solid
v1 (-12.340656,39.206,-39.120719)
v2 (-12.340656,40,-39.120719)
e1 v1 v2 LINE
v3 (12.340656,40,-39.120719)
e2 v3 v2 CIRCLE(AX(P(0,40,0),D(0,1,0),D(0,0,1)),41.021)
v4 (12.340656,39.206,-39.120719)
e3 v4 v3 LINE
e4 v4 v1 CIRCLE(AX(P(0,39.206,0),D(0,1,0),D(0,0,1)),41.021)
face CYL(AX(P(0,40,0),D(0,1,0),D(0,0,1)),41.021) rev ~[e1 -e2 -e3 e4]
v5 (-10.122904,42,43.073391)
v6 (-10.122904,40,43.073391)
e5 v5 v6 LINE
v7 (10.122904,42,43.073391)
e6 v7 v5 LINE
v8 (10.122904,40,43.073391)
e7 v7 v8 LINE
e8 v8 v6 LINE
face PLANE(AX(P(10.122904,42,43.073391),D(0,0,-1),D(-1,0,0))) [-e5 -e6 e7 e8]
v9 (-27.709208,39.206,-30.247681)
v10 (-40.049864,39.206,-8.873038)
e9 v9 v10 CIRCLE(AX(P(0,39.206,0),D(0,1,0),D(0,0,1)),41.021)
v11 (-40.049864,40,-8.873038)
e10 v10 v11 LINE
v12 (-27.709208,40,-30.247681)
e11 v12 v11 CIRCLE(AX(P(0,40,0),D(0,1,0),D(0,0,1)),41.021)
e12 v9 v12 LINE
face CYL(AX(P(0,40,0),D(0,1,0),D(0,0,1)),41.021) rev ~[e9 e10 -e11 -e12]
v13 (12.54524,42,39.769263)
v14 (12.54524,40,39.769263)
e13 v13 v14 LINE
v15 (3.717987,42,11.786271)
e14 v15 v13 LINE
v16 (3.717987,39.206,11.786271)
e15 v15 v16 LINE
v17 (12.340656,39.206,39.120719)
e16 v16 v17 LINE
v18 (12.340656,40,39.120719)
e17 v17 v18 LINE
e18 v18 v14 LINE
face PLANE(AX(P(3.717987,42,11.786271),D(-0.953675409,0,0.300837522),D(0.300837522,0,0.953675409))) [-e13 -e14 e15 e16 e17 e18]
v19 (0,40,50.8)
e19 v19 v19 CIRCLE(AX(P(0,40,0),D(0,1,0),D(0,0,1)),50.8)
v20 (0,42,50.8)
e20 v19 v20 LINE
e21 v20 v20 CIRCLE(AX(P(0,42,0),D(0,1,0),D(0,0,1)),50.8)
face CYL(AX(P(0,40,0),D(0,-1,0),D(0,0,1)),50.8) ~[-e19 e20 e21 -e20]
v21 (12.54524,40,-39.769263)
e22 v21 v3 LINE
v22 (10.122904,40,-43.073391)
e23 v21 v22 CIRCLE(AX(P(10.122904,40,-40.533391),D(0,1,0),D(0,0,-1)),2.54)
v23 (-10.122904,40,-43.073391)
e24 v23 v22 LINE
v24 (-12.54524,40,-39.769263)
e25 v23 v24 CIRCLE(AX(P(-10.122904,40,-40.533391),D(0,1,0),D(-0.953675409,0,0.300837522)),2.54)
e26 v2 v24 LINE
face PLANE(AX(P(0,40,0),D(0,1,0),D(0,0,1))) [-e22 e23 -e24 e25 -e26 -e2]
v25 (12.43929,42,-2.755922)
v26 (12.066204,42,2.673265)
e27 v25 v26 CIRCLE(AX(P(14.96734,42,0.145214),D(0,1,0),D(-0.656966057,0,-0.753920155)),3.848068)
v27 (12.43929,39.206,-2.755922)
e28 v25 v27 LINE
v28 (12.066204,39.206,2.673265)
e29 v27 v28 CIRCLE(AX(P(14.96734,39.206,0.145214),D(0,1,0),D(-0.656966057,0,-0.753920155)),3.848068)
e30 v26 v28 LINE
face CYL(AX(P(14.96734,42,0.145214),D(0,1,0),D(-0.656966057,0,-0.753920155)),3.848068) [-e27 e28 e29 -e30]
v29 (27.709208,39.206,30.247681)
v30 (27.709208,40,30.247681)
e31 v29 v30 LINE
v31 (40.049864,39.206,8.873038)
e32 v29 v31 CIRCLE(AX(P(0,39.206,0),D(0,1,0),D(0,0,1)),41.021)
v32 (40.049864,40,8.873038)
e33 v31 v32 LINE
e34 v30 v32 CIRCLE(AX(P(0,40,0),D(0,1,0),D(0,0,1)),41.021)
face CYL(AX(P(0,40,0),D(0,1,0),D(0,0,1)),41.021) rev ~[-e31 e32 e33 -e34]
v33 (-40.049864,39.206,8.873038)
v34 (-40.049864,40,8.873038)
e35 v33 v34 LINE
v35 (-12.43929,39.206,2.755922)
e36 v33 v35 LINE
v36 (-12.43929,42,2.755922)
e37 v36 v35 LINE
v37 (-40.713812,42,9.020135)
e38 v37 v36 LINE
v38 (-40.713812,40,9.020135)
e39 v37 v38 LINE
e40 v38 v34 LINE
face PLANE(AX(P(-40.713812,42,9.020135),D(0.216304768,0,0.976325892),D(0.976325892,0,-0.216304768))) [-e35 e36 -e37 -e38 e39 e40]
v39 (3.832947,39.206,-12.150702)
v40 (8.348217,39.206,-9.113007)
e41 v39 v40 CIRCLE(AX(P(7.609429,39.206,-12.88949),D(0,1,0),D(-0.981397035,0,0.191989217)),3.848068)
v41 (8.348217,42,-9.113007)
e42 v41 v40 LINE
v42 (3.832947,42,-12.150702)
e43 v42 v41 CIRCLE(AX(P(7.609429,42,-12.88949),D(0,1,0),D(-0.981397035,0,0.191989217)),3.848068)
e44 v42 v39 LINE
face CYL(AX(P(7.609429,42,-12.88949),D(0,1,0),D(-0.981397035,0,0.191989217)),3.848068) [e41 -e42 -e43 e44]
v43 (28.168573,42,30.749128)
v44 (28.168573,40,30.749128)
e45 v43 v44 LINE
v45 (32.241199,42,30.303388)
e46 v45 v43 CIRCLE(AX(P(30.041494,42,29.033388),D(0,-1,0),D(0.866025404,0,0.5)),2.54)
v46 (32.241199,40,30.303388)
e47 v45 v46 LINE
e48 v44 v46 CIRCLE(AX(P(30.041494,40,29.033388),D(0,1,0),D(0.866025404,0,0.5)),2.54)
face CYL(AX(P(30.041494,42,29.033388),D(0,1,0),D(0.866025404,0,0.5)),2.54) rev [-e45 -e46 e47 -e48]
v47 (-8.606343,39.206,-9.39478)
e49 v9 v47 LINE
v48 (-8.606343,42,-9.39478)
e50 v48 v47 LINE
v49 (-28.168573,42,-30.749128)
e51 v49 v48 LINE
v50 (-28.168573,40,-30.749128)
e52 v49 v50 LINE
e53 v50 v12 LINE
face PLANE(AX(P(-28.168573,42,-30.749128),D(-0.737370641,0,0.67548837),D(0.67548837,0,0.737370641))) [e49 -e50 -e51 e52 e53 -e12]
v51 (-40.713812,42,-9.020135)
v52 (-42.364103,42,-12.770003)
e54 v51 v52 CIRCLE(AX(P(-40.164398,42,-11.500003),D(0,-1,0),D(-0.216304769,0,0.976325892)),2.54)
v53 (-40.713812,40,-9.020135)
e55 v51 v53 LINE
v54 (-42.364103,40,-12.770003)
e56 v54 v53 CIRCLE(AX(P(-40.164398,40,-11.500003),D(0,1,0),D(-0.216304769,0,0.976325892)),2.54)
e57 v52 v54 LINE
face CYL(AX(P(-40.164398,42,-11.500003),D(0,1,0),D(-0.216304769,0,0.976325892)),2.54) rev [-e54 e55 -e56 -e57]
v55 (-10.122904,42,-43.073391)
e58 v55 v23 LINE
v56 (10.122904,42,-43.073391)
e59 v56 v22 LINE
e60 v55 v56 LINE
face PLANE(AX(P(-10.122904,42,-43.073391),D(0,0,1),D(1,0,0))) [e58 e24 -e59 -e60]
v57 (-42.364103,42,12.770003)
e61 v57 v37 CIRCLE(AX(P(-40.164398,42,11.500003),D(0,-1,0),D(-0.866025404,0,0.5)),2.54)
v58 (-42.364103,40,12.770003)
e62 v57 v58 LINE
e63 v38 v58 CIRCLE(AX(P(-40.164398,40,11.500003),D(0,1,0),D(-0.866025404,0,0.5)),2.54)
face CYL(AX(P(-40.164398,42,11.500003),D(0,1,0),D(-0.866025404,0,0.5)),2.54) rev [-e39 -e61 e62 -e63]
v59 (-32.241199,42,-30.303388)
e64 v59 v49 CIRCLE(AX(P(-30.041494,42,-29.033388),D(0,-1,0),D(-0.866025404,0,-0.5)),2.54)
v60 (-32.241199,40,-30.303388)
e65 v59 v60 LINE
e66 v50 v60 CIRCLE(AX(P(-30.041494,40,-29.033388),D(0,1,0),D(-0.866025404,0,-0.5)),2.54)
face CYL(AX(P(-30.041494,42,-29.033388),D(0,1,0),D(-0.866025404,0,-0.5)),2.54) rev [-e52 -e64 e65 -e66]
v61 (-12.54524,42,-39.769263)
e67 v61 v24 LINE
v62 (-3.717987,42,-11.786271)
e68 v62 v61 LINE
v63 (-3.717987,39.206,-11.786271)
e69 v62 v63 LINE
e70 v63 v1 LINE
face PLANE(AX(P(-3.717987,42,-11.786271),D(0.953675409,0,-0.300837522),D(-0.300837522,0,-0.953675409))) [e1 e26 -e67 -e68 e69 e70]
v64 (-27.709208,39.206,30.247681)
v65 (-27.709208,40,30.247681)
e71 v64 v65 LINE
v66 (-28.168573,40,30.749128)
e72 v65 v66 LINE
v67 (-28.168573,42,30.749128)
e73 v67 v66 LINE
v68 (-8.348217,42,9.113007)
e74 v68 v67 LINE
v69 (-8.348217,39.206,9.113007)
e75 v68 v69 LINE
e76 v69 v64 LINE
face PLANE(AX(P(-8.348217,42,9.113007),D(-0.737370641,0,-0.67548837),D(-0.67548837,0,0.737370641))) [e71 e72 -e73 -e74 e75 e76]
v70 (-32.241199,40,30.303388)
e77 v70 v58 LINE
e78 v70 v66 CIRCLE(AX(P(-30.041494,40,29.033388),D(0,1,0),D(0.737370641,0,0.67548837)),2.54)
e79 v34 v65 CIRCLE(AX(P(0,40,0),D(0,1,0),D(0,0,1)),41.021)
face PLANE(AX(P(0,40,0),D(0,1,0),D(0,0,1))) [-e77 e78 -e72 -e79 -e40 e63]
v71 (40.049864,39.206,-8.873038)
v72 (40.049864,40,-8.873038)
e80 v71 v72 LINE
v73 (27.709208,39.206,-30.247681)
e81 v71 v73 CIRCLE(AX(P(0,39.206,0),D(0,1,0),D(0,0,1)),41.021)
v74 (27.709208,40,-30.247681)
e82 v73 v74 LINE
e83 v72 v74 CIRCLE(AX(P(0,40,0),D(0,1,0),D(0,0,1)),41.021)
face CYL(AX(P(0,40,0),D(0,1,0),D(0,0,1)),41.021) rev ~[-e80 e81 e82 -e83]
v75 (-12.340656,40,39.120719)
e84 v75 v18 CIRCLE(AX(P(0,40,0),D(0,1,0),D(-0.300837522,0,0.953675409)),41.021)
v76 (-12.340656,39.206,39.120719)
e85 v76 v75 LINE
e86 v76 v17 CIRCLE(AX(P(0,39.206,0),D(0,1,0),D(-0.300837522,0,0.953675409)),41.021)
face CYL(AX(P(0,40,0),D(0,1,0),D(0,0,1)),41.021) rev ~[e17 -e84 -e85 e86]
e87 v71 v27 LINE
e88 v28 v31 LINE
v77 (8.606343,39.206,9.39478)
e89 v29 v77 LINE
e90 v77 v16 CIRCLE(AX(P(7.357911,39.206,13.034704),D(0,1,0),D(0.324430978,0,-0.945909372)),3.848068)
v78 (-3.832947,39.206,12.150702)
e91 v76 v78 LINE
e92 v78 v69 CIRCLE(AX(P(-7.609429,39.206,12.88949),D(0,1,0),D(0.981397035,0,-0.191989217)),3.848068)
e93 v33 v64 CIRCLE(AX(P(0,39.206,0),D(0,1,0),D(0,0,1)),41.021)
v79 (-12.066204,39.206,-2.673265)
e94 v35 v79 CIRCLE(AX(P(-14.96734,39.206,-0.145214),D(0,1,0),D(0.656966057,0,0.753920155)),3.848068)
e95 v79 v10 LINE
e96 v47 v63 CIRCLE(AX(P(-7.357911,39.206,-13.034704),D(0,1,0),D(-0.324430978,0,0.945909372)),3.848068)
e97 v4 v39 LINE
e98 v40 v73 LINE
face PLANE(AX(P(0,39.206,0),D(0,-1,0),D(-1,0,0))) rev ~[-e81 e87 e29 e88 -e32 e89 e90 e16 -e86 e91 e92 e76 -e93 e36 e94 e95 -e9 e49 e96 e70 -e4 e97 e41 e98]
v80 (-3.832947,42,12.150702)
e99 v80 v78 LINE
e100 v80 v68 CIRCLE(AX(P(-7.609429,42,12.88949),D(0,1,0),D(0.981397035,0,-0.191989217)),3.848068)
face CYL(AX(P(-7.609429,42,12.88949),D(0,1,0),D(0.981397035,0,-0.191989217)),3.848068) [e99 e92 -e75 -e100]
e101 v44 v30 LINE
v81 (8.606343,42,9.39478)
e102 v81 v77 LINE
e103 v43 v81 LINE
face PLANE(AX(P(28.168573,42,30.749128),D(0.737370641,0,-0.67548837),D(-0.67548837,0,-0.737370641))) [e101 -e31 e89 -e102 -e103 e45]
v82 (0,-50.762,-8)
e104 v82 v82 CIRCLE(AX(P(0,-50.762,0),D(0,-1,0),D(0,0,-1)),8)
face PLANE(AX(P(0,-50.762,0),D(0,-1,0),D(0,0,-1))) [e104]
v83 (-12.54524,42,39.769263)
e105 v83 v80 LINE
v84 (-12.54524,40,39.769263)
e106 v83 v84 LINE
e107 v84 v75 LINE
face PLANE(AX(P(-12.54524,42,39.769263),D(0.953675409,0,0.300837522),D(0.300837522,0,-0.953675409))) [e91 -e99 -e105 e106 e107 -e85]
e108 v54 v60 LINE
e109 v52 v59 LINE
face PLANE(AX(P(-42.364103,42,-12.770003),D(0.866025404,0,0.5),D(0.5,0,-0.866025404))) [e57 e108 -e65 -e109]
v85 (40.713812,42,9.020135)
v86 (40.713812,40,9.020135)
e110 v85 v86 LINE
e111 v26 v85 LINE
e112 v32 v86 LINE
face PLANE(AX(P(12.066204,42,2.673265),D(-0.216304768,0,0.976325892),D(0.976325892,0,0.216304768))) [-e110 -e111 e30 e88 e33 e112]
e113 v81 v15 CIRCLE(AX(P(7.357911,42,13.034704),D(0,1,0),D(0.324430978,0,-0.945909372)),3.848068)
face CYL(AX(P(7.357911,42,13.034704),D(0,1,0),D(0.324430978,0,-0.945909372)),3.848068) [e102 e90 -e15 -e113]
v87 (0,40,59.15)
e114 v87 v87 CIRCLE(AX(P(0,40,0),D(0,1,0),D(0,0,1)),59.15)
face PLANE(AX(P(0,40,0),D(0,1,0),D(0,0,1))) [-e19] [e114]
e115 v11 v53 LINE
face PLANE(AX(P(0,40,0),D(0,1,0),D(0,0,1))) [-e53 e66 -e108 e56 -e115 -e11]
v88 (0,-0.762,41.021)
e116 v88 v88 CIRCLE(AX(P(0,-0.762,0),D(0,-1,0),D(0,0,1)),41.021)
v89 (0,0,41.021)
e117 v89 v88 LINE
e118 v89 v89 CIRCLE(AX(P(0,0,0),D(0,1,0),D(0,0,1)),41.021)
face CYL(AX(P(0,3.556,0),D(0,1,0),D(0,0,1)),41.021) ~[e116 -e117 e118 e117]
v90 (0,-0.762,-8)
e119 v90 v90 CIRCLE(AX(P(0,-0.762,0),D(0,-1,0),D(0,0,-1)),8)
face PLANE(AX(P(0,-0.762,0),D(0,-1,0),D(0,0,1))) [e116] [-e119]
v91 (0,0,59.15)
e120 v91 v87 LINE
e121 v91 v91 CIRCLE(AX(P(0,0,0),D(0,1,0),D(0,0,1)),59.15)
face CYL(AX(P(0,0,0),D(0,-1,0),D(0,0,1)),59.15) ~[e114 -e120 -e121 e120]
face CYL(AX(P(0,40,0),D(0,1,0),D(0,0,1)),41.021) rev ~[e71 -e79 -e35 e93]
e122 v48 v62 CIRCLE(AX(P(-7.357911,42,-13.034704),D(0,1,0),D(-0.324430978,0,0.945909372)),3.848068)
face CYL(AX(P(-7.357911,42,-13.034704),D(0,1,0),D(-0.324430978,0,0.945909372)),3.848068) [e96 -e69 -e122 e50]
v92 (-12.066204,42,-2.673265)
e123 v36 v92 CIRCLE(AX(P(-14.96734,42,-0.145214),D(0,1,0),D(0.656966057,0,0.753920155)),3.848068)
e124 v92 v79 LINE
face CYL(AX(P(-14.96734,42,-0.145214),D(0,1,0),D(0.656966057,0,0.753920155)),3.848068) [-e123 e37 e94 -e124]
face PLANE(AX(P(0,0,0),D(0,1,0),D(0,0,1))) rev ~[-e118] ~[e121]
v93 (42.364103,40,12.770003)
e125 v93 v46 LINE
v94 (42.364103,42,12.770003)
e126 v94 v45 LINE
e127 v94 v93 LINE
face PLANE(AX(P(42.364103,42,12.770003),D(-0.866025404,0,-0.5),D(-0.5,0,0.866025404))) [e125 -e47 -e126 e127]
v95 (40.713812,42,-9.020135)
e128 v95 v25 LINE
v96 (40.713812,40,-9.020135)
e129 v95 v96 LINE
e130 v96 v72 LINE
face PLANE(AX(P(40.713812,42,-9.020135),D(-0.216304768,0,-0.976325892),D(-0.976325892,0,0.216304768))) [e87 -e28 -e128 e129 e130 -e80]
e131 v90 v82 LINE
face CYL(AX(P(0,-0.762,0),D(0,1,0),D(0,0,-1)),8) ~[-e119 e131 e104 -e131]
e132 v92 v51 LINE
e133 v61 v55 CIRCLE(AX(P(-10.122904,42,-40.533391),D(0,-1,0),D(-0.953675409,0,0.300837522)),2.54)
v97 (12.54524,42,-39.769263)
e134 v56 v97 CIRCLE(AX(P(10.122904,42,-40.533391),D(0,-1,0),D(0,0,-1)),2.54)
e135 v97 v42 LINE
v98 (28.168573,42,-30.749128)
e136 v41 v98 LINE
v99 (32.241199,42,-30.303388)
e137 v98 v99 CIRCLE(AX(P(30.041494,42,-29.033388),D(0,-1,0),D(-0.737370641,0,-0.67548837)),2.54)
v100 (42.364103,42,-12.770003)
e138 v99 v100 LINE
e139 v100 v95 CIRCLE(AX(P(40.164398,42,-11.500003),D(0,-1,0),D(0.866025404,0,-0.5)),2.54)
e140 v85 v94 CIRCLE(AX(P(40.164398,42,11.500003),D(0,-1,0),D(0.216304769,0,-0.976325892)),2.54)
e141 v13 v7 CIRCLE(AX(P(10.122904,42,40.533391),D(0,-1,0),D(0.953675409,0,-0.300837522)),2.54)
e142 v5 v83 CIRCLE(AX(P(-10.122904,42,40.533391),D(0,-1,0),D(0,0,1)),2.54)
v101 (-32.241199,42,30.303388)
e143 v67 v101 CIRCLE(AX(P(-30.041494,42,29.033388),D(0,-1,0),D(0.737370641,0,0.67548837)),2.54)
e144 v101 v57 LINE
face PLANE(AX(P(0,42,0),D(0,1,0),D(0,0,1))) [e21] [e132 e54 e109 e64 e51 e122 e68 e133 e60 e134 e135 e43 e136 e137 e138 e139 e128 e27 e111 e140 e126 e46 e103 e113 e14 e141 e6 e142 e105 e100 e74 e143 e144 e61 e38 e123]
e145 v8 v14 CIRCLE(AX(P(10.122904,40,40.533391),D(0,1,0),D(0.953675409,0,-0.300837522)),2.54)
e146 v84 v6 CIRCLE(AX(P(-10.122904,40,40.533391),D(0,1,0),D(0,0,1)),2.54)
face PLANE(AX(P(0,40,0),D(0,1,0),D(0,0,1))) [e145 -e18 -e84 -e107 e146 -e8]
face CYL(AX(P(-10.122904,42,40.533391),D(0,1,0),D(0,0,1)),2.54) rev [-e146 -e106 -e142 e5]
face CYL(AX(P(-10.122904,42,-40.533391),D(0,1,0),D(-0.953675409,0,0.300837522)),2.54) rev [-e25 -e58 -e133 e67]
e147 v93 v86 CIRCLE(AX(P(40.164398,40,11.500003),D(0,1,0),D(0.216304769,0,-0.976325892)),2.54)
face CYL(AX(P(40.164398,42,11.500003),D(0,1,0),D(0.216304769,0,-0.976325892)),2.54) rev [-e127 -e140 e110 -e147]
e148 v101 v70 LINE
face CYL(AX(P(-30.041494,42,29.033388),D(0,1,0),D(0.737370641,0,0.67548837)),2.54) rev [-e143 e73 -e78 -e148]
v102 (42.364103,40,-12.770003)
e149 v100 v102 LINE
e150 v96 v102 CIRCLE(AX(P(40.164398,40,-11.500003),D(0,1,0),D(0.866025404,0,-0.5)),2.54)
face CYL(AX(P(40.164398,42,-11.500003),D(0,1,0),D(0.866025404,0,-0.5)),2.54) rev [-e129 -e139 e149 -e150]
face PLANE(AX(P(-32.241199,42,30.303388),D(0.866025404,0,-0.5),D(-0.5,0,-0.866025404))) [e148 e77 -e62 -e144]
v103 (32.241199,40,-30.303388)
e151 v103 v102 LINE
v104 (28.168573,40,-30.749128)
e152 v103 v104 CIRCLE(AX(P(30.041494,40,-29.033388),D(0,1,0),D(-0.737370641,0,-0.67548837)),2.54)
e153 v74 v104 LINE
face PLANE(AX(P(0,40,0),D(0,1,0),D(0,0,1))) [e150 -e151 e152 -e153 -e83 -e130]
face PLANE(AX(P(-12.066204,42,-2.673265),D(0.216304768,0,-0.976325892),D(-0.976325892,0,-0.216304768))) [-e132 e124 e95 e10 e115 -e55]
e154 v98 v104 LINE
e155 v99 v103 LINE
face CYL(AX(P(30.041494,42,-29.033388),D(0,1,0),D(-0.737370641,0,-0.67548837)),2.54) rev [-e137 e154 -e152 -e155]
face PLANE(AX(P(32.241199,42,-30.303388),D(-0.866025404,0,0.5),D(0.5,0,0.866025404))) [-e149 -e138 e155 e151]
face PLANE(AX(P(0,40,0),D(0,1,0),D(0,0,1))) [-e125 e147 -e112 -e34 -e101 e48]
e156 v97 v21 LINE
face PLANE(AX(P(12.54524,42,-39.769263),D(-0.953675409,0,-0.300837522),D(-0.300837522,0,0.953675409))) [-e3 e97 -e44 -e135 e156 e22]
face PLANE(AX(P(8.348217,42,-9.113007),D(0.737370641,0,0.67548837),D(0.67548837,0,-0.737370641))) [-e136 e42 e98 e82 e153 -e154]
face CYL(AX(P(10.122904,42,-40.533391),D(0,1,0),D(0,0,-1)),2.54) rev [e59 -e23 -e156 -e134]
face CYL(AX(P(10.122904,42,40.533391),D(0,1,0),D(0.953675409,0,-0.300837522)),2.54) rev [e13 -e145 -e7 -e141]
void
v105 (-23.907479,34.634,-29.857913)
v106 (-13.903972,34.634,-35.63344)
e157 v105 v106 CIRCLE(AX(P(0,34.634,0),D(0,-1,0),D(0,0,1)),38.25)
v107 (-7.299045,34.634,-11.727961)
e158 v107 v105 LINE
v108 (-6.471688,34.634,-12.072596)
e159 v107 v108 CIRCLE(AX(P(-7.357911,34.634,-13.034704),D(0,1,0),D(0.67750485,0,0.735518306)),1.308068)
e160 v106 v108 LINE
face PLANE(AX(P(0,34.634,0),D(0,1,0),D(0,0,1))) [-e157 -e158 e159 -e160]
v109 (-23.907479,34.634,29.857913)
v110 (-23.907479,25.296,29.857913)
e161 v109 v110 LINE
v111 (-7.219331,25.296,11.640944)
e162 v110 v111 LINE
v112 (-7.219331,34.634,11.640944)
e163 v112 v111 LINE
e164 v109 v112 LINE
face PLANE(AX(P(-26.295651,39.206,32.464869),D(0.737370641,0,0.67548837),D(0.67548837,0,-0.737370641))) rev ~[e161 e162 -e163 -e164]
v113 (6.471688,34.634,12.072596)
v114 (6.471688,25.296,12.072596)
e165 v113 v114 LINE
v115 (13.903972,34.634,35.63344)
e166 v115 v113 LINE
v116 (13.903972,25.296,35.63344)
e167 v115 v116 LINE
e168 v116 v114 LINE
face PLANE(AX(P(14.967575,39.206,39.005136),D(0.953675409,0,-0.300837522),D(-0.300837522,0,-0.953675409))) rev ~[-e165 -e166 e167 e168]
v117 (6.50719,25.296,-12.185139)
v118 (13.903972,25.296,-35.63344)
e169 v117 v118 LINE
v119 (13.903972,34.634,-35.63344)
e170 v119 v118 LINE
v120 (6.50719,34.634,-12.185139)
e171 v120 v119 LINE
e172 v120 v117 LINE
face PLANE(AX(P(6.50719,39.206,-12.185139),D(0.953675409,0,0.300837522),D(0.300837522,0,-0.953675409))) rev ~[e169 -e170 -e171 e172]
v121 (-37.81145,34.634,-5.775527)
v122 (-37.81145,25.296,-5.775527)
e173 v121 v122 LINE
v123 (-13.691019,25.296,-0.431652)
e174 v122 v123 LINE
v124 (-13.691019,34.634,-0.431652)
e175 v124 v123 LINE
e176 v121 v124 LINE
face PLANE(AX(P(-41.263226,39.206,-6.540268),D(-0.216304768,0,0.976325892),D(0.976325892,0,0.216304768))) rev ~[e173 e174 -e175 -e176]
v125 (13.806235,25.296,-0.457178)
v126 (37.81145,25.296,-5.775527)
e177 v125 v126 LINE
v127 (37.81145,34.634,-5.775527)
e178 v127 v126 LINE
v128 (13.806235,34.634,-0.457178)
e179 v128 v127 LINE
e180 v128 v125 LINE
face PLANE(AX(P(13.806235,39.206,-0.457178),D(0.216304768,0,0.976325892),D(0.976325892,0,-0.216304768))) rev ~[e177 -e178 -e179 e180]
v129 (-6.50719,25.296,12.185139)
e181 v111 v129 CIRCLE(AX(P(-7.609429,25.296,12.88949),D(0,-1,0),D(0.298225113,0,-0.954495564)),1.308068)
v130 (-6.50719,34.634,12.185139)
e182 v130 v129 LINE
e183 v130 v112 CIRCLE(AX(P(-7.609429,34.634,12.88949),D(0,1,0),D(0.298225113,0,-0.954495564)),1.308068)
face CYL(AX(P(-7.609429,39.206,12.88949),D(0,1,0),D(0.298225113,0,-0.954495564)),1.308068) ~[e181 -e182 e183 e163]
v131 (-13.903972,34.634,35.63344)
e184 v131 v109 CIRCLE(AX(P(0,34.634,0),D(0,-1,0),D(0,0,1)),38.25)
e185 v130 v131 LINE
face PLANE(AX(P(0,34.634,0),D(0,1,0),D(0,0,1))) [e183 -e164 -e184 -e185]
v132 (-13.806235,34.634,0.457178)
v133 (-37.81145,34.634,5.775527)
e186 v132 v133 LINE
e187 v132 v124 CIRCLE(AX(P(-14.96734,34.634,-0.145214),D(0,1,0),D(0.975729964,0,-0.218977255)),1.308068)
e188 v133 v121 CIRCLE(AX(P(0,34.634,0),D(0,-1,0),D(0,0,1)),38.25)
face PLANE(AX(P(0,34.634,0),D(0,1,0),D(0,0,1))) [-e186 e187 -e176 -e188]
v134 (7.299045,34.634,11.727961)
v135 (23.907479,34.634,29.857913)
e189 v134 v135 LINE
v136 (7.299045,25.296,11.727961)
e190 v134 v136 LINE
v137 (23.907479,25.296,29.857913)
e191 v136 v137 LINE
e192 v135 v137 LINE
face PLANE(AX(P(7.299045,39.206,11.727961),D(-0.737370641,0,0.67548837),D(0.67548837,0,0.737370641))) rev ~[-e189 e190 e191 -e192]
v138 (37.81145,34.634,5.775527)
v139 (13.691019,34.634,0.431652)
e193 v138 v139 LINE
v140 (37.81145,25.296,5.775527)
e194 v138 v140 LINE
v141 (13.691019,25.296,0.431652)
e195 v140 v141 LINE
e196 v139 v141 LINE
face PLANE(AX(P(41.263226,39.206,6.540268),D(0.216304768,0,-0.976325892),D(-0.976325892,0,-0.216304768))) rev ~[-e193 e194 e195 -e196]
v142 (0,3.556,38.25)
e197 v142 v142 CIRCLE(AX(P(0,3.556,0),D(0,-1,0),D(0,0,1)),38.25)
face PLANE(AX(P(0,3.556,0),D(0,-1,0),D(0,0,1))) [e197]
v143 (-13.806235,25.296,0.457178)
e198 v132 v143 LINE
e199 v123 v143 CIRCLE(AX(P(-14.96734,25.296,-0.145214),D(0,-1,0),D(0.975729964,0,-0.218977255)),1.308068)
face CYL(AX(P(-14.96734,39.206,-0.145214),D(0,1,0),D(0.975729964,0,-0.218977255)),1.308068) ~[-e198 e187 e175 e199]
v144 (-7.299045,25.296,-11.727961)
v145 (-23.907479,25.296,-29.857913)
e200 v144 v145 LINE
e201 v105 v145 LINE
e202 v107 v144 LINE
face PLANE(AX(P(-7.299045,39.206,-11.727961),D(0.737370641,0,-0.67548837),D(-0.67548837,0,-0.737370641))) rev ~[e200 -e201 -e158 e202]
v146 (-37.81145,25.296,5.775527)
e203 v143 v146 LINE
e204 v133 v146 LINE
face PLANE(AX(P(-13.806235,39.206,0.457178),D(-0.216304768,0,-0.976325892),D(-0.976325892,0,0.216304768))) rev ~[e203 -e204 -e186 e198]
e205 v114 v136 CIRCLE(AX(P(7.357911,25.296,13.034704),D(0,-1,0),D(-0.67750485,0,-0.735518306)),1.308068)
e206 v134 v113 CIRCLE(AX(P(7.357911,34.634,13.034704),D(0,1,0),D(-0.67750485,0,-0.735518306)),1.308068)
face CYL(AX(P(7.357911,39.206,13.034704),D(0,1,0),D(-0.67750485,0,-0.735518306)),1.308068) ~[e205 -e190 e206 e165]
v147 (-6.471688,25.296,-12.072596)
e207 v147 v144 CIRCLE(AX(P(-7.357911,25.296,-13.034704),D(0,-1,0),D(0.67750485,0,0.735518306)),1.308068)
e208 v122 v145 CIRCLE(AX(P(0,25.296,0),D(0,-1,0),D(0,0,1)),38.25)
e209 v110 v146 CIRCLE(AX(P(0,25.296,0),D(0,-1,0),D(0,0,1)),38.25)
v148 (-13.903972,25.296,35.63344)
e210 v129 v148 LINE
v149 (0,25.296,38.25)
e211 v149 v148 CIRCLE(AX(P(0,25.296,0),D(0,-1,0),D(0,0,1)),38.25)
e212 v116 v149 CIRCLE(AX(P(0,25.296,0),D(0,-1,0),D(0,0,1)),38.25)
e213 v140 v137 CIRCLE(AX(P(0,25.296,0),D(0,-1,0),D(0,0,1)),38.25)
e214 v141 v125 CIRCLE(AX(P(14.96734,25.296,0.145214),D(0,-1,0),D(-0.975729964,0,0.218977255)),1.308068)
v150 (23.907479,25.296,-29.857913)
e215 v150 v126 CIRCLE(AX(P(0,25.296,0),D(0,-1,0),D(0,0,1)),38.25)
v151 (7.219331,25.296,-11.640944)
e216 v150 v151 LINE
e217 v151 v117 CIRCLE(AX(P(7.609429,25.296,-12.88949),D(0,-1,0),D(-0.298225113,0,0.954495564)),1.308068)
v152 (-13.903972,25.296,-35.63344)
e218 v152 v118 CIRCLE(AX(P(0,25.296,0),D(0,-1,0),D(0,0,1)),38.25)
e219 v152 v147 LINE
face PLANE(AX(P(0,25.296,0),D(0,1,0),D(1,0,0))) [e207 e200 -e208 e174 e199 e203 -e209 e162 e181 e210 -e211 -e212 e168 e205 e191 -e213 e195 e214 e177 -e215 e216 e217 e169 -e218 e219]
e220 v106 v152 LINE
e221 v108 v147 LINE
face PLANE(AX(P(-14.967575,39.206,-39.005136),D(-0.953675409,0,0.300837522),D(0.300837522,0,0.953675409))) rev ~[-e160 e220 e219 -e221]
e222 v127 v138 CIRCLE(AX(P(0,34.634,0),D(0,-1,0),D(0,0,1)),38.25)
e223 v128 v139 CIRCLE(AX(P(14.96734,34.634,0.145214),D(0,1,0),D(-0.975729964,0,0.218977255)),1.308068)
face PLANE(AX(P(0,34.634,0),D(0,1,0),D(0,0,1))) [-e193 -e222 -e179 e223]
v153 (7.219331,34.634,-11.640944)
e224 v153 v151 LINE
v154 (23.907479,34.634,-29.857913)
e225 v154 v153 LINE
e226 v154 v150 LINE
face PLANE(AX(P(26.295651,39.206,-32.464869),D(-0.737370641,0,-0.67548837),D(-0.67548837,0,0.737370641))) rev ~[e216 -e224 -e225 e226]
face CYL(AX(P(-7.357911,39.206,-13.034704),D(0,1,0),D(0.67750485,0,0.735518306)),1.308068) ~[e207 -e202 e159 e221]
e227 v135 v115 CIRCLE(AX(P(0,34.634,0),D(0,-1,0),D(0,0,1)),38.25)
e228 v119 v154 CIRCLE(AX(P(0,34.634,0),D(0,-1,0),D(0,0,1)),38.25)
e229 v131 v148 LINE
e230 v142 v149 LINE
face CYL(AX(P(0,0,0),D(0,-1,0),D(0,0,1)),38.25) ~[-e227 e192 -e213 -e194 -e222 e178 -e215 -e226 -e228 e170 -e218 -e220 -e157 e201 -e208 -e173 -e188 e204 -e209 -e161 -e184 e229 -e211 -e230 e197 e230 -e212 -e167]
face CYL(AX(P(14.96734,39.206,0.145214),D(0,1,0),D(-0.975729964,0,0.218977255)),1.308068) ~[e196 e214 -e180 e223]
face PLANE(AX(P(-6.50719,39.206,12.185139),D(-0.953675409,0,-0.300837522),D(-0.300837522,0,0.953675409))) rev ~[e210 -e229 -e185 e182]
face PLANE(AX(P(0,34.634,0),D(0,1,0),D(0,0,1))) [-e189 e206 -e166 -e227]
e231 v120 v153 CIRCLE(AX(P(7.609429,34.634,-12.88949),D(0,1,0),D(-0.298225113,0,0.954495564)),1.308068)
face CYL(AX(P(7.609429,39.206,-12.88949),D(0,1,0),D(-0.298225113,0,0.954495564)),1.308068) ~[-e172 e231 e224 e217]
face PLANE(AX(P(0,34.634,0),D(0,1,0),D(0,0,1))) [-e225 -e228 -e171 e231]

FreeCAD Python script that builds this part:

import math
import FreeCAD as App
import Part
import Sketcher

V = App.Vector
Q = App.Units.Quantity

doc = App.newDocument("Part")
body = doc.addObject("PartDesign::Body", "Body")

sketch1 = body.newObject("Sketcher::SketchObject", "Sketch")
sketch1.AttachmentSupport = (doc.getObject("XZ_Plane"), [""])
sketch1.MapMode = "FlatFace"
sketch1.addGeometry([
    Part.Circle(V(0, 0, 0), V(0, 0, 1), 59),
    Part.Circle(V(0, 0, 0), V(0, 0, 1), 38),
], False)
sketch1.addConstraint([
    Sketcher.Constraint("Coincident", 0, 3, -1, 1),
    Sketcher.Constraint("Coincident", 1, 3, -1, 1),
    Sketcher.Constraint("Diameter", 0, Q("118.3 mm")),
    Sketcher.Constraint("Diameter", 1, Q("76.5 mm")),
])
pad1 = body.newObject("PartDesign::Pad", "Pad")
pad1.Profile = sketch1
pad1.Length = 40
pad1.Reversed = True

sketch2 = body.newObject("Sketcher::SketchObject", "Sketch001")
sketch2.AttachmentSupport = (doc.getObject("XZ_Plane"), [""])
sketch2.MapMode = "FlatFace"
sketch2.AttachmentOffset = App.Placement(V(0, 0, -40), App.Rotation())
sketch2.addGeometry(Part.Circle(V(0, 0, 0), V(0, 0, 1), 41), False)
sketch2.addConstraint([
    Sketcher.Constraint("Coincident", 0, 3, -1, 1),
    Sketcher.Constraint("Diameter", 0, Q("3.23 in")),
])
pocket1 = body.newObject("PartDesign::Pocket", "Pocket")
pocket1.Profile = sketch2
pocket1.Length = Q("0.14 in")
pocket1.Reversed = True
doc.recompute()

datumplane = body.newObject("PartDesign::Plane", "DatumPlane")
datumplane.AttachmentSupport = (doc.getObject("XZ_Plane"), [""])
datumplane.MapMode = "FlatFace"
datumplane.AttachmentOffset = App.Placement(V(0, 0, -20), App.Rotation())
mirrored = body.newObject("PartDesign::Mirrored", "Mirrored")
mirrored.Originals = [pocket1]
mirrored.MirrorPlane = (datumplane, [""])
body.Tip = mirrored
body2 = doc.addObject("PartDesign::Body", "Body001")

sketch3 = body2.newObject("Sketcher::SketchObject", "Sketch002")
sketch3.AttachmentSupport = (doc.getObject("XZ_Plane001"), [""])
sketch3.MapMode = "FlatFace"
sketch3.AttachmentOffset = App.Placement(V(0, 0, -40), App.Rotation())
sketch3.addGeometry(Part.Circle(V(0, 0, 0), V(0, 0, 1), 51), False)
sketch3.addConstraint([
    Sketcher.Constraint("Coincident", 0, 3, -1, 1),
    Sketcher.Constraint("Diameter", 0, Q("4 in")),
])
pad2 = body2.newObject("PartDesign::Pad", "Pad001")
pad2.Profile = sketch3
pad2.Length = 2
pad2.Reversed = True

sketch4 = body2.newObject("Sketcher::SketchObject", "Sketch003")
sketch4.AttachmentSupport = (doc.getObject("XZ_Plane001"), [""])
sketch4.MapMode = "FlatFace"
sketch4.AttachmentOffset = App.Placement(V(0, 0, -42), App.Rotation())
sketch4.addGeometry(Part.Circle(V(0, 0, 0), V(0, 0, 1), 44), False)
sketch4.addConstraint([
    Sketcher.Constraint("Coincident", 0, 3, -1, 1),
    Sketcher.Constraint("Diameter", 0, Q("3.5 in")),
])
pad3 = body2.newObject("PartDesign::Pad", "Pad002")
pad3.Profile = sketch4
pad3.Length = Q("0.29 in")

sketch5 = body2.newObject("Sketcher::SketchObject", "Sketch004")
sketch5.AttachmentSupport = (doc.getObject("XZ_Plane001"), [""])
sketch5.MapMode = "FlatFace"
sketch5.AttachmentOffset = App.Placement(V(0, 0, -42), App.Rotation())
sketch5.addGeometry([
    Part.LineSegment(V(-12.5, -39.8, 0), V(-3.7, -11.8, 0)),
    Part.ArcOfCircle(Part.Circle(V(-7.4, -13, 0), V(0, 0, 1), 3.8), math.radians(19), math.radians(109)),
    Part.LineSegment(V(-8.6, -9.4, 0), V(-28.2, -30.7, 0)),
    Part.ArcOfCircle(Part.Circle(V(-30, -29, 0), V(0, 0, 1), 2.5), math.radians(-150), math.radians(-42)),
    Part.LineSegment(V(-32.2, -30.3, 0), V(-42.4, -12.8, 0)),
    Part.ArcOfCircle(Part.Circle(V(-40.2, -11.5, 0), V(0, 0, 1), 2.5), math.radians(102), math.radians(210)),
    Part.LineSegment(V(-40.7, -9, 0), V(-12.1, -2.7, 0)),
    Part.ArcOfCircle(Part.Circle(V(-15, -0.1, 0), V(0, 0, 1), 3.8), math.radians(-41), math.radians(49)),
    Part.LineSegment(V(-12.4, 2.8, 0), V(-40.7, 9, 0)),
    Part.ArcOfCircle(Part.Circle(V(-40.2, 11.5, 0), V(0, 0, 1), 2.5), math.radians(150), math.radians(258)),
    Part.LineSegment(V(-42.4, 12.8, 0), V(-32.2, 30.3, 0)),
    Part.ArcOfCircle(Part.Circle(V(-30, 29, 0), V(0, 0, 1), 2.5), math.radians(42), math.radians(150)),
    Part.LineSegment(V(-28.2, 30.7, 0), V(-8.3, 9.1, 0)),
    Part.ArcOfCircle(Part.Circle(V(-7.6, 12.9, 0), V(0, 0, 1), 3.8), math.radians(-101), math.radians(-11)),
    Part.LineSegment(V(-3.8, 12.2, 0), V(-12.5, 39.8, 0)),
    Part.ArcOfCircle(Part.Circle(V(-10.1, 40.5, 0), V(0, 0, 1), 2.5), math.radians(90), math.radians(198)),
    Part.LineSegment(V(-10.1, 43.1, 0), V(10.1, 43.1, 0)),
    Part.ArcOfCircle(Part.Circle(V(10.1, 40.5, 0), V(0, 0, 1), 2.5), math.radians(-18), math.radians(90)),
    Part.LineSegment(V(12.5, 39.8, 0), V(3.7, 11.8, 0)),
    Part.ArcOfCircle(Part.Circle(V(7.4, 13, 0), V(0, 0, 1), 3.8), math.radians(-161), math.radians(-71)),
    Part.LineSegment(V(8.6, 9.4, 0), V(28.2, 30.7, 0)),
    Part.ArcOfCircle(Part.Circle(V(30, 29, 0), V(0, 0, 1), 2.5), math.radians(30), math.radians(138)),
    Part.LineSegment(V(32.2, 30.3, 0), V(42.4, 12.8, 0)),
    Part.ArcOfCircle(Part.Circle(V(40.2, 11.5, 0), V(0, 0, 1), 2.5), math.radians(-78), math.radians(30)),
    Part.LineSegment(V(40.7, 9, 0), V(12.1, 2.7, 0)),
    Part.ArcOfCircle(Part.Circle(V(15, 0.1, 0), V(0, 0, 1), 3.8), math.radians(139), math.radians(229)),
    Part.LineSegment(V(12.4, -2.8, 0), V(40.7, -9, 0)),
    Part.ArcOfCircle(Part.Circle(V(40.2, -11.5, 0), V(0, 0, 1), 2.5), math.radians(-30), math.radians(78)),
    Part.LineSegment(V(42.4, -12.8, 0), V(32.2, -30.3, 0)),
    Part.ArcOfCircle(Part.Circle(V(30, -29, 0), V(0, 0, 1), 2.5), math.radians(-138), math.radians(-30)),
    Part.LineSegment(V(28.2, -30.7, 0), V(8.3, -9.1, 0)),
    Part.ArcOfCircle(Part.Circle(V(7.6, -12.9, 0), V(0, 0, 1), 3.8), math.radians(79), math.radians(169)),
    Part.LineSegment(V(3.8, -12.2, 0), V(12.5, -39.8, 0)),
    Part.ArcOfCircle(Part.Circle(V(10.1, -40.5, 0), V(0, 0, 1), 2.5), math.radians(-90), math.radians(18)),
    Part.LineSegment(V(10.1, -43.1, 0), V(-10.1, -43.1, 0)),
    Part.ArcOfCircle(Part.Circle(V(-10.1, -40.5, 0), V(0, 0, 1), 2.5), math.radians(162), math.radians(270)),
], False)
sketch5.addConstraint([
    Sketcher.Constraint("Coincident", 0, 2, 1, 1),
    Sketcher.Constraint("Coincident", 1, 2, 2, 1),
    Sketcher.Constraint("Tangent", 2, 2, 3, 2),
    Sketcher.Constraint("Tangent", 3, 1, 4, 1),
    Sketcher.Constraint("Tangent", 4, 2, 5, 2),
    Sketcher.Constraint("Tangent", 5, 1, 6, 1),
    Sketcher.Constraint("Coincident", 6, 2, 7, 1),
    Sketcher.Constraint("Coincident", 7, 2, 8, 1),
    Sketcher.Constraint("Tangent", 8, 2, 9, 2),
    Sketcher.Constraint("Tangent", 9, 1, 10, 1),
    Sketcher.Constraint("Tangent", 10, 2, 11, 2),
    Sketcher.Constraint("Tangent", 11, 1, 12, 1),
    Sketcher.Constraint("Coincident", 12, 2, 13, 1),
    Sketcher.Constraint("Coincident", 13, 2, 14, 1),
    Sketcher.Constraint("Tangent", 14, 2, 15, 2),
    Sketcher.Constraint("Tangent", 15, 1, 16, 1),
    Sketcher.Constraint("Tangent", 16, 2, 17, 2),
    Sketcher.Constraint("Tangent", 17, 1, 18, 1),
    Sketcher.Constraint("Coincident", 18, 2, 19, 1),
    Sketcher.Constraint("Coincident", 19, 2, 20, 1),
    Sketcher.Constraint("Tangent", 20, 2, 21, 2),
    Sketcher.Constraint("Tangent", 21, 1, 22, 1),
    Sketcher.Constraint("Tangent", 22, 2, 23, 2),
    Sketcher.Constraint("Tangent", 23, 1, 24, 1),
    Sketcher.Constraint("Coincident", 24, 2, 25, 1),
    Sketcher.Constraint("Coincident", 25, 2, 26, 1),
    Sketcher.Constraint("Tangent", 26, 2, 27, 2),
    Sketcher.Constraint("Tangent", 27, 1, 28, 1),
    Sketcher.Constraint("Tangent", 28, 2, 29, 2),
    Sketcher.Constraint("Tangent", 29, 1, 30, 1),
    Sketcher.Constraint("Coincident", 30, 2, 31, 1),
    Sketcher.Constraint("Coincident", 31, 2, 32, 1),
    Sketcher.Constraint("Tangent", 32, 2, 33, 2),
    Sketcher.Constraint("Tangent", 33, 1, 34, 1),
    Sketcher.Constraint("Tangent", 34, 2, 35, 2),
    Sketcher.Constraint("Tangent", 35, 1, 0, 1),
    Sketcher.Constraint("Horizontal", 16),
    Sketcher.Constraint("Horizontal", 34),
    Sketcher.Constraint("Equal", 3, 5),
    Sketcher.Constraint("Equal", 1, 7),
    Sketcher.Constraint("Equal", 5, 9),
    Sketcher.Constraint("Equal", 9, 11),
    Sketcher.Constraint("Equal", 7, 13),
    Sketcher.Constraint("Equal", 11, 15),
    Sketcher.Constraint("Equal", 15, 17),
    Sketcher.Constraint("Equal", 13, 19),
    Sketcher.Constraint("Equal", 17, 21),
    Sketcher.Constraint("Equal", 21, 23),
    Sketcher.Constraint("Equal", 19, 25),
    Sketcher.Constraint("Equal", 23, 27),
    Sketcher.Constraint("Equal", 27, 29),
    Sketcher.Constraint("Equal", 25, 31),
    Sketcher.Constraint("Equal", 29, 33),
    Sketcher.Constraint("Equal", 33, 35),
    Sketcher.Constraint("Symmetric", 1, 3, 19, 3, -1, 1),
    Sketcher.Constraint("Symmetric", 3, 3, 21, 3, -1, 1),
    Sketcher.Constraint("Symmetric", 5, 3, 23, 3, -1, 1),
    Sketcher.Constraint("Symmetric", 7, 3, 25, 3, -1, 1),
    Sketcher.Constraint("Symmetric", 9, 3, 27, 3, -1, 1),
    Sketcher.Constraint("Symmetric", 11, 3, 29, 3, -1, 1),
    Sketcher.Constraint("Symmetric", 13, 3, 31, 3, -1, 1),
    Sketcher.Constraint("Symmetric", 15, 3, 33, 3, -1, 1),
    Sketcher.Constraint("Symmetric", 17, 1, 35, 1, -1, 1),
    Sketcher.Constraint("Symmetric", 11, 3, 21, 3, -2),
    Sketcher.Constraint("Symmetric", 9, 3, 23, 3, -2),
    Sketcher.Constraint("Symmetric", 14, 2, 17, 1, -2),
    Sketcher.Constraint("Parallel", 2, 20),
    Sketcher.Constraint("Parallel", 6, 24),
    Sketcher.Constraint("Parallel", 8, 26),
    Sketcher.Constraint("Parallel", 12, 30),
    Sketcher.Constraint("Parallel", 14, 32),
    Sketcher.Constraint("Horizontal", 11, 1, 20, 2),
    Sketcher.Constraint("Horizontal", 8, 2, 23, 1),
    Sketcher.Constraint("Equal", 0, 6),
    Sketcher.Constraint("Equal", 2, 8),
    Sketcher.Constraint("Equal", 6, 12),
    Sketcher.Constraint("Equal", 8, 14),
    Sketcher.Constraint("Radius", 3, Q("0.1 in")),
    Sketcher.Constraint("Angle", 4, Q("120 deg")),
    Sketcher.Constraint("Radius", 1, Q("3.848068 mm")),
    Sketcher.Constraint("DistanceX", 16, 1, 16, 2, Q("20.245808 mm")),
    Sketcher.Constraint("DistanceX", 5, 3, -1, 1, Q("40.164398 mm")),
    Sketcher.Constraint("DistanceX", 3, 1, -1, 1, Q("32.241199 mm")),
    Sketcher.Constraint("DistanceY", -1, 1, 13, 2, Q("12.150702 mm")),
    Sketcher.Constraint("DistanceY", 1, 3, 5, 3, Q("1.534701 mm")),
    Sketcher.Constraint("DistanceY", 13, 3, 11, 3, Q("16.143898 mm")),
    Sketcher.Constraint("DistanceY", 13, 3, 15, 3, Q("27.643901 mm")),
    Sketcher.Constraint("DistanceY", 1, 2, 7, 2, Q("12.150702 mm")),
    Sketcher.Constraint("Distance", 0, Q("29.34226 mm")),
    Sketcher.Constraint("DistanceX", 1, 3, -1, 1, Q("7.357911 mm")),
])
pocket2 = body2.newObject("PartDesign::Pocket", "Pocket001")
pocket2.Profile = sketch5
pocket2.Length = Q("0.11 in")
pocket2.Reversed = True
doc.recompute()

boolean = body.newObject("PartDesign::Boolean", "Boolean")
boolean.Type = "Fuse"
boolean.addObjects([body2])

sketch6 = body.newObject("Sketcher::SketchObject", "Sketch005")
sketch6.AttachmentSupport = (doc.getObject("XZ_Plane"), [""])
sketch6.MapMode = "FlatFace"
sketch6.AttachmentOffset = App.Placement(V(0, 0, -39.206), App.Rotation())
sketch6.addGeometry([
    Part.LineSegment(V(10.1, -45.6, 0), V(-10.1, -45.6, 0)),
    Part.ArcOfCircle(Part.Circle(V(-10.1, -40.5, 0), V(0, 0, 1), 5.1), math.radians(162), math.radians(270)),
    Part.LineSegment(V(-15, -39, 0), V(-6.5, -12.1, 0)),
    Part.ArcOfCircle(Part.Circle(V(-7.4, -13, 0), V(0, 0, 1), 1.3), math.radians(47), math.radians(87)),
    Part.LineSegment(V(-7.3, -11.7, 0), V(-26.3, -32.5, 0)),
    Part.ArcOfCircle(Part.Circle(V(-30, -29, 0), V(0, 0, 1), 5.1), math.radians(-150), math.radians(-42)),
    Part.LineSegment(V(-34.4, -31.6, 0), V(-44.6, -14, 0)),
    Part.ArcOfCircle(Part.Circle(V(-40.2, -11.5, 0), V(0, 0, 1), 5.1), math.radians(102), math.radians(210)),
    Part.LineSegment(V(-41.3, -6.5, 0), V(-13.7, -0.4, 0)),
    Part.ArcOfCircle(Part.Circle(V(-15, -0.1, 0), V(0, 0, 1), 1.3), math.radians(-13), math.radians(27)),
    Part.LineSegment(V(-13.8, 0.5, 0), V(-41.3, 6.5, 0)),
    Part.ArcOfCircle(Part.Circle(V(-40.2, 11.5, 0), V(0, 0, 1), 5.1), math.radians(150), math.radians(258)),
    Part.LineSegment(V(-44.6, 14, 0), V(-34.4, 31.6, 0)),
    Part.ArcOfCircle(Part.Circle(V(-30, 29, 0), V(0, 0, 1), 5.1), math.radians(42), math.radians(150)),
    Part.LineSegment(V(-26.3, 32.5, 0), V(-7.2, 11.6, 0)),
    Part.ArcOfCircle(Part.Circle(V(-7.6, 12.9, 0), V(0, 0, 1), 1.3), math.radians(-73), math.radians(-33)),
    Part.LineSegment(V(-6.5, 12.2, 0), V(-15, 39, 0)),
    Part.ArcOfCircle(Part.Circle(V(-10.1, 40.5, 0), V(0, 0, 1), 5.1), math.radians(90), math.radians(198)),
    Part.LineSegment(V(-10.1, 45.6, 0), V(10.1, 45.6, 0)),
    Part.ArcOfCircle(Part.Circle(V(10.1, 40.5, 0), V(0, 0, 1), 5.1), math.radians(-18), math.radians(90)),
    Part.LineSegment(V(15, 39, 0), V(6.5, 12.1, 0)),
    Part.ArcOfCircle(Part.Circle(V(7.4, 13, 0), V(0, 0, 1), 1.3), math.radians(-133), math.radians(-93)),
    Part.LineSegment(V(7.3, 11.7, 0), V(26.3, 32.5, 0)),
    Part.ArcOfCircle(Part.Circle(V(30, 29, 0), V(0, 0, 1), 5.1), math.radians(30), math.radians(138)),
    Part.LineSegment(V(34.4, 31.6, 0), V(44.6, 14, 0)),
    Part.ArcOfCircle(Part.Circle(V(40.2, 11.5, 0), V(0, 0, 1), 5.1), math.radians(-78), math.radians(30)),
    Part.LineSegment(V(41.3, 6.5, 0), V(13.7, 0.4, 0)),
    Part.ArcOfCircle(Part.Circle(V(15, 0.1, 0), V(0, 0, 1), 1.3), math.radians(167), math.radians(207)),
    Part.LineSegment(V(13.8, -0.5, 0), V(41.3, -6.5, 0)),
    Part.ArcOfCircle(Part.Circle(V(40.2, -11.5, 0), V(0, 0, 1), 5.1), math.radians(-30), math.radians(78)),
    Part.LineSegment(V(44.6, -14, 0), V(34.4, -31.6, 0)),
    Part.ArcOfCircle(Part.Circle(V(30, -29, 0), V(0, 0, 1), 5.1), math.radians(-138), math.radians(-30)),
    Part.LineSegment(V(26.3, -32.5, 0), V(7.2, -11.6, 0)),
    Part.ArcOfCircle(Part.Circle(V(7.6, -12.9, 0), V(0, 0, 1), 1.3), math.radians(107), math.radians(147)),
    Part.LineSegment(V(6.5, -12.2, 0), V(15, -39, 0)),
    Part.ArcOfCircle(Part.Circle(V(10.1, -40.5, 0), V(0, 0, 1), 5.1), math.radians(-90), math.radians(18)),
], False)
sketch6.addConstraint([
    Sketcher.Constraint("Tangent", 0, 2, 1, 2),
    Sketcher.Constraint("Tangent", 1, 1, 2, 1),
    Sketcher.Constraint("Coincident", 2, 2, 3, 1),
    Sketcher.Constraint("Coincident", 3, 2, 4, 1),
    Sketcher.Constraint("Tangent", 4, 2, 5, 2),
    Sketcher.Constraint("Tangent", 5, 1, 6, 1),
    Sketcher.Constraint("Tangent", 6, 2, 7, 2),
    Sketcher.Constraint("Tangent", 7, 1, 8, 1),
    Sketcher.Constraint("Coincident", 8, 2, 9, 1),
    Sketcher.Constraint("Coincident", 9, 2, 10, 1),
    Sketcher.Constraint("Tangent", 10, 2, 11, 2),
    Sketcher.Constraint("Tangent", 11, 1, 12, 1),
    Sketcher.Constraint("Tangent", 12, 2, 13, 2),
    Sketcher.Constraint("Tangent", 13, 1, 14, 1),
    Sketcher.Constraint("Coincident", 14, 2, 15, 1),
    Sketcher.Constraint("Coincident", 15, 2, 16, 1),
    Sketcher.Constraint("Tangent", 16, 2, 17, 2),
    Sketcher.Constraint("Tangent", 17, 1, 18, 1),
    Sketcher.Constraint("Tangent", 18, 2, 19, 2),
    Sketcher.Constraint("Tangent", 19, 1, 20, 1),
    Sketcher.Constraint("Coincident", 20, 2, 21, 1),
    Sketcher.Constraint("Coincident", 21, 2, 22, 1),
    Sketcher.Constraint("Tangent", 22, 2, 23, 2),
    Sketcher.Constraint("Tangent", 23, 1, 24, 1),
    Sketcher.Constraint("Tangent", 24, 2, 25, 2),
    Sketcher.Constraint("Tangent", 25, 1, 26, 1),
    Sketcher.Constraint("Coincident", 26, 2, 27, 1),
    Sketcher.Constraint("Coincident", 27, 2, 28, 1),
    Sketcher.Constraint("Tangent", 28, 2, 29, 2),
    Sketcher.Constraint("Tangent", 29, 1, 30, 1),
    Sketcher.Constraint("Tangent", 30, 2, 31, 2),
    Sketcher.Constraint("Tangent", 31, 1, 32, 1),
    Sketcher.Constraint("Coincident", 32, 2, 33, 1),
    Sketcher.Constraint("Coincident", 33, 2, 34, 1),
    Sketcher.Constraint("Tangent", 34, 2, 35, 2),
    Sketcher.Constraint("Tangent", 35, 1, 0, 1),
    Sketcher.Constraint("Horizontal", 0),
    Sketcher.Constraint("Horizontal", 18),
    Sketcher.Constraint("Equal", 1, 5),
    Sketcher.Constraint("Equal", 5, 7),
    Sketcher.Constraint("Equal", 3, 9),
    Sketcher.Constraint("Equal", 7, 11),
    Sketcher.Constraint("Equal", 11, 13),
    Sketcher.Constraint("Equal", 9, 15),
    Sketcher.Constraint("Equal", 13, 17),
    Sketcher.Constraint("Equal", 17, 19),
    Sketcher.Constraint("Equal", 15, 21),
    Sketcher.Constraint("Equal", 19, 23),
    Sketcher.Constraint("Equal", 23, 25),
    Sketcher.Constraint("Equal", 21, 27),
    Sketcher.Constraint("Equal", 25, 29),
    Sketcher.Constraint("Equal", 29, 31),
    Sketcher.Constraint("Equal", 27, 33),
    Sketcher.Constraint("Equal", 31, 35),
    Sketcher.Constraint("Symmetric", 1, 3, 19, 3, -1, 1),
    Sketcher.Constraint("Symmetric", 3, 3, 21, 3, -1, 1),
    Sketcher.Constraint("Symmetric", 5, 3, 23, 3, -1, 1),
    Sketcher.Constraint("Symmetric", 7, 3, 25, 3, -1, 1),
    Sketcher.Constraint("Symmetric", 9, 3, 27, 3, -1, 1),
    Sketcher.Constraint("Symmetric", 11, 3, 29, 3, -1, 1),
    Sketcher.Constraint("Symmetric", 13, 3, 31, 3, -1, 1),
    Sketcher.Constraint("Symmetric", 15, 3, 33, 3, -1, 1),
    Sketcher.Constraint("Symmetric", 16, 2, 34, 2, -1, 1),
    Sketcher.Constraint("Symmetric", 13, 3, 23, 3, -2),
    Sketcher.Constraint("Symmetric", 11, 3, 25, 3, -2),
    Sketcher.Constraint("Symmetric", 16, 2, 19, 1, -2),
    Sketcher.Constraint("Parallel", 2, 20),
    Sketcher.Constraint("Parallel", 4, 22),
    Sketcher.Constraint("Parallel", 8, 26),
    Sketcher.Constraint("Parallel", 10, 28),
    Sketcher.Constraint("Parallel", 14, 32),
    Sketcher.Constraint("Horizontal", 13, 1, 22, 2),
    Sketcher.Constraint("Horizontal", 10, 2, 25, 1),
    Sketcher.Constraint("Equal", 2, 8),
    Sketcher.Constraint("Equal", 4, 10),
    Sketcher.Constraint("Equal", 8, 14),
    Sketcher.Constraint("Equal", 10, 16),
    Sketcher.Constraint("Radius", 1, Q("0.2 in")),
    Sketcher.Constraint("Angle", 6, Q("120 deg")),
    Sketcher.Constraint("Radius", 3, Q("1.308068 mm")),
    Sketcher.Constraint("DistanceX", 0, 2, 0, 1, Q("20.245808 mm")),
    Sketcher.Constraint("DistanceX", 7, 3, -1, 1, Q("40.164398 mm")),
    Sketcher.Constraint("DistanceY", 3, 3, 7, 3, Q("1.534701 mm")),
    Sketcher.Constraint("DistanceY", 15, 3, 13, 3, Q("16.143898 mm")),
    Sketcher.Constraint("DistanceY", 15, 3, 17, 3, Q("27.643901 mm")),
    Sketcher.Constraint("DistanceX", 13, 3, 19, 3, Q("40.164398 mm")),
    Sketcher.Constraint("DistanceX", 15, 3, 14, 2, Q("0.390099 mm")),
    Sketcher.Constraint("DistanceX", 15, 2, 21, 3, Q("13.8651 mm")),
    Sketcher.Constraint("DistanceY", 1, 3, -1, 1, Q("40.533391 mm")),
    Sketcher.Constraint("DistanceX", 9, 3, -1, 1, Q("14.96734 mm")),
])
pad4 = body.newObject("PartDesign::Pad", "Pad003")
pad4.Profile = sketch6
pad4.Length = 13.91

sketch7 = body.newObject("Sketcher::SketchObject", "Sketch006")
sketch7.AttachmentSupport = (doc.getObject("XZ_Plane"), [""])
sketch7.MapMode = "FlatFace"
sketch7.AttachmentOffset = App.Placement(V(0, 0, -0.14 * 25.4), App.Rotation())
sketch7.addGeometry(Part.Circle(V(0, 0, 0), V(0, 0, 1), 41), False)
sketch7.addConstraint([
    Sketcher.Constraint("Coincident", 0, 3, -1, 1),
    Sketcher.Constraint("Diameter", 0, Q("3.23 in")),
])
pad5 = body.newObject("PartDesign::Pad", "Pad004")
pad5.Profile = sketch7
pad5.Length = Q("0.17 in")

sketch8 = body.newObject("Sketcher::SketchObject", "Sketch007")
sketch8.AttachmentSupport = (doc.getObject("XZ_Plane"), [""])
sketch8.MapMode = "FlatFace"
sketch8.AttachmentOffset = App.Placement(V(0, 0, 0.03 * 25.4), App.Rotation())
sketch8.addGeometry(Part.Circle(V(0, 0, 0), V(0, 0, 1), 8), False)
sketch8.addConstraint([
    Sketcher.Constraint("Coincident", 0, 3, -1, 1),
    Sketcher.Constraint("Diameter", 0, Q("16 mm")),
])
pad6 = body.newObject("PartDesign::Pad", "Pad005")
pad6.Profile = sketch8
pad6.Length = 50

doc.recompute()
